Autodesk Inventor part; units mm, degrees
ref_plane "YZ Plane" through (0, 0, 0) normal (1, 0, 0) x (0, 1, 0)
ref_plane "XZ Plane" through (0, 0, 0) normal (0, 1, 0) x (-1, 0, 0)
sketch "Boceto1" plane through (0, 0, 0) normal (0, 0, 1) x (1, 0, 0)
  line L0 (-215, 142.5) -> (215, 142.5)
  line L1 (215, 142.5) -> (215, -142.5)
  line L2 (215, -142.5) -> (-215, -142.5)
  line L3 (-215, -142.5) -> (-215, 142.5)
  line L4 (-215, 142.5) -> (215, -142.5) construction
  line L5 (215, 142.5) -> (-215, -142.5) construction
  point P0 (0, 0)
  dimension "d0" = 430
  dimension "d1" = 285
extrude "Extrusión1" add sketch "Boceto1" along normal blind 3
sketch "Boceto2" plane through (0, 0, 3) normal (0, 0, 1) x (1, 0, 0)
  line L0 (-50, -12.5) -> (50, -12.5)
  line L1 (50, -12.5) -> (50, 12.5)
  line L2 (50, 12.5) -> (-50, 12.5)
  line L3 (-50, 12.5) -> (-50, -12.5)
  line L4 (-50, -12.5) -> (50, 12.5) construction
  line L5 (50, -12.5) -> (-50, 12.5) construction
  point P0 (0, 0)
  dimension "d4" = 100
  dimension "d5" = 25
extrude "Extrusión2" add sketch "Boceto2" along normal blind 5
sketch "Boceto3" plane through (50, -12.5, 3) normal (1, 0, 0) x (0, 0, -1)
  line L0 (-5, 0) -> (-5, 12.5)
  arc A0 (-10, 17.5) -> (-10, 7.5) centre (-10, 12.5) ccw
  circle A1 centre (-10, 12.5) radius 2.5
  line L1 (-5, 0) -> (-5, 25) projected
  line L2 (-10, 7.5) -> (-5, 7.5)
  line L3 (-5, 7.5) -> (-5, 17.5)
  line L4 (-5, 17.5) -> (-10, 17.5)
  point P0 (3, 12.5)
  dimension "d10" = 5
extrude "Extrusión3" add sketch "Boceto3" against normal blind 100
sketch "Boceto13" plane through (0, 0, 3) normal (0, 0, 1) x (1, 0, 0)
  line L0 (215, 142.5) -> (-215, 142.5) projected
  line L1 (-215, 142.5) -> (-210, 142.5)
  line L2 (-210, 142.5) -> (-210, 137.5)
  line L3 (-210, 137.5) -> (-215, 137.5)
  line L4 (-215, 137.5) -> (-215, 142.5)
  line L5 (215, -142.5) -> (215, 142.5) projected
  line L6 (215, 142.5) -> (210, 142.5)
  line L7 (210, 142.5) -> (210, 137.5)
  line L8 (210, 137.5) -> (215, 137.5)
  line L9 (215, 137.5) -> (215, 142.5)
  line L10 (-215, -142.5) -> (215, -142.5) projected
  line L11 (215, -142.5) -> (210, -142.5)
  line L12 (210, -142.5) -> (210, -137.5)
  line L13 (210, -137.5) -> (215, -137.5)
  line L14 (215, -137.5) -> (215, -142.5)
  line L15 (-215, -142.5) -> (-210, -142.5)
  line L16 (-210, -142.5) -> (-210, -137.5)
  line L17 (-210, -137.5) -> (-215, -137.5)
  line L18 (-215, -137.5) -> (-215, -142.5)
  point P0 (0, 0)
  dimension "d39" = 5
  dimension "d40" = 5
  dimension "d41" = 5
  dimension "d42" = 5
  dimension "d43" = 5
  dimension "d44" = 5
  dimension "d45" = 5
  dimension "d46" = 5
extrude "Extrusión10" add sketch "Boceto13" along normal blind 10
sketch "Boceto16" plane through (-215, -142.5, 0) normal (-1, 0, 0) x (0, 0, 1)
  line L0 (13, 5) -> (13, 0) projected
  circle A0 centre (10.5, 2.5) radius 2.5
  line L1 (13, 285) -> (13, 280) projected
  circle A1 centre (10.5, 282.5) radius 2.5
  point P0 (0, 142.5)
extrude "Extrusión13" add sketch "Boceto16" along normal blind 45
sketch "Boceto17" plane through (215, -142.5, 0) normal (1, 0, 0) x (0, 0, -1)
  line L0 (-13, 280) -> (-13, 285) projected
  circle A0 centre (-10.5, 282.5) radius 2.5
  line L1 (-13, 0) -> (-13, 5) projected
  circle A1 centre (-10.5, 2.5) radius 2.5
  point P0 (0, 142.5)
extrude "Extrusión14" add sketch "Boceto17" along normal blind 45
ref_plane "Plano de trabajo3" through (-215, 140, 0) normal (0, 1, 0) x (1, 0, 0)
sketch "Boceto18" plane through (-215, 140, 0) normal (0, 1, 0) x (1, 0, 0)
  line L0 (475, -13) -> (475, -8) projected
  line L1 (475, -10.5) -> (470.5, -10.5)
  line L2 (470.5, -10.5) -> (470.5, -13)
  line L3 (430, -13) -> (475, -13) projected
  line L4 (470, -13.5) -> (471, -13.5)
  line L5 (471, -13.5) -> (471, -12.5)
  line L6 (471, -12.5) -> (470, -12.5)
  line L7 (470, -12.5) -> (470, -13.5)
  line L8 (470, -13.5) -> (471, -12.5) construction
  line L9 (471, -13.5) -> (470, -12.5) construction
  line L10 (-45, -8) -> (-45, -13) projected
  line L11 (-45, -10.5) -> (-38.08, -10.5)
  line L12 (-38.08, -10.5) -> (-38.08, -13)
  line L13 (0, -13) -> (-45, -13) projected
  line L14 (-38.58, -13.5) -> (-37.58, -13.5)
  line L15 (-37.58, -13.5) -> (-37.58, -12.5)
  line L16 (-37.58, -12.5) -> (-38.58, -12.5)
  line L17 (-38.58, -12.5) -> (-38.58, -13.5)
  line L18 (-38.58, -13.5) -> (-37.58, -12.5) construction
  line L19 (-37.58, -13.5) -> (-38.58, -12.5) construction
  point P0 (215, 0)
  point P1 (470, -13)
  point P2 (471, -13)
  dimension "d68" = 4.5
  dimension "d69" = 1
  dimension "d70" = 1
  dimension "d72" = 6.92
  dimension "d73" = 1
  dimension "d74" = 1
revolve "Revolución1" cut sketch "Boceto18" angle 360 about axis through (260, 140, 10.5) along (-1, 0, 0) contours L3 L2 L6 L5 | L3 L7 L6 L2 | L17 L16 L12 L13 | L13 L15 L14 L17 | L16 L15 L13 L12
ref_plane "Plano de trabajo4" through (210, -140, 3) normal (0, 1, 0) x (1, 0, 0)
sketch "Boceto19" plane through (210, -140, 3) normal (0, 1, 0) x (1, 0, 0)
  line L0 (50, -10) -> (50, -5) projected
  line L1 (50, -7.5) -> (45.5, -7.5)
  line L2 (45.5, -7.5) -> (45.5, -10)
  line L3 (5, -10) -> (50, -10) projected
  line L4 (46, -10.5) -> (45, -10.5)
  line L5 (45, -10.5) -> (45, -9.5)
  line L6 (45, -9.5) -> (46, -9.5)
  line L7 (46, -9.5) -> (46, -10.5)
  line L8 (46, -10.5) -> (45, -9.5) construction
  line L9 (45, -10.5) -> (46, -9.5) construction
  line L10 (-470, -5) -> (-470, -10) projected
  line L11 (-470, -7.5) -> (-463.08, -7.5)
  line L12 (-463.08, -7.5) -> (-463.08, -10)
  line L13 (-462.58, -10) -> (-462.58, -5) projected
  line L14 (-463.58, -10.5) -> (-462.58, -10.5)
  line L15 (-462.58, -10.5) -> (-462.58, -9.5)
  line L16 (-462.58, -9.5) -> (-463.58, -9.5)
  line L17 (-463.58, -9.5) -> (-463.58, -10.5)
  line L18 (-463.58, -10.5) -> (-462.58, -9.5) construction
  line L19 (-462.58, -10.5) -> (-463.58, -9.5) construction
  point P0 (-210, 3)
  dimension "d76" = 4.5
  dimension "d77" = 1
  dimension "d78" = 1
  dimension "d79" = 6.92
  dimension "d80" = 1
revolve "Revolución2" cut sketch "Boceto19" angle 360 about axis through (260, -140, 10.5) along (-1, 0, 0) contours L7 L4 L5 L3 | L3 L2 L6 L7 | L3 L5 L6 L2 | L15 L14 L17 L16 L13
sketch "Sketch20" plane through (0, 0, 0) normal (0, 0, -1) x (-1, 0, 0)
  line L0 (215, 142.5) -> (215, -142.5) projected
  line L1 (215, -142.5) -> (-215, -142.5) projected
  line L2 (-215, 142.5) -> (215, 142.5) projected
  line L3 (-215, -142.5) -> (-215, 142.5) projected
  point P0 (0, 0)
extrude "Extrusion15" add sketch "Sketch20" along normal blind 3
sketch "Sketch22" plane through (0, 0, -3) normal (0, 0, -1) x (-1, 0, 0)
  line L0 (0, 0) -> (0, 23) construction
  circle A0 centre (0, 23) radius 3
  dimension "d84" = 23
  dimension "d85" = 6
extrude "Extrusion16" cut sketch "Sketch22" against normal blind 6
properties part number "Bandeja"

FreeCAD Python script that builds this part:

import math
import FreeCAD as App
import Part
import Sketcher


def add_polygon(sketch, points):
    """Adds a closed chain of lines whose ends are joined by coincident constraints."""
    first, n = sketch.GeometryCount, len(points)
    for a, b in zip(points, points[1:] + points[:1]):
        sketch.addGeometry(Part.LineSegment(App.Vector(*a, 0), App.Vector(*b, 0)), False)
    for i in range(n):
        sketch.addConstraint(Sketcher.Constraint("Coincident", first + i, 2, first + (i + 1) % n, 1))

doc = App.newDocument("Part")
params = doc.addObject("Spreadsheet::Sheet", "Params")
for row, (alias, value) in enumerate([
    ("sketch1_width", "430 mm"),
    ("sketch1_height", "285 mm"),
    ("pad1_length", "3 mm"),
    ("sketch2_width", "100 mm"),
    ("sketch2_height", "25 mm"),
    ("pad2_length", "5 mm"),
    ("sketch3_diameter", "5 mm"),
    ("sketch3_radius", "5 mm"),
    ("sketch3_height", "5 mm"),
    ("pad3_length", "100 mm"),
    ("sketch4_width", "5 mm"),
    ("pad4_length", "10 mm"),
    ("sketch5_diameter", "5 mm"),
    ("pad5_length", "45 mm"),
    ("sketch6_diameter", "5 mm"),
    ("pad6_length", "45 mm"),
    ("sketch7_width", "1 mm"),
    ("sketch7_height", "0.5 mm"),
    ("sketch7_width2", "509.58 mm"),
    ("groove_angle", "360 deg"),
    ("sketch8_width", "1 mm"),
    ("sketch8_width2", "509.58 mm"),
    ("groove2_angle", "360 deg"),
    ("sketch9_width", "430 mm"),
    ("sketch9_height", "285 mm"),
    ("pad7_length", "3 mm"),
    ("sketch10_diameter", "6 mm"),
    ("pocket1_length", "6 mm"),
], start=1):
    params.set(f"A{row}", alias)
    params.set(f"B{row}", "=" + value)
    params.setAlias(f"B{row}", alias)

body = doc.addObject("PartDesign::Body", "Body")

sketch1 = body.newObject("Sketcher::SketchObject", "Sketch")
sketch1.AttachmentSupport = (doc.getObject("XY_Plane"), [""])
sketch1.MapMode = "FlatFace"
add_polygon(sketch1, [(215, 142.5), (-215, 142.5), (-215, -142.5), (215, -142.5)])
sketch1.addConstraint(Sketcher.Constraint("Horizontal", 0))
sketch1.addConstraint(Sketcher.Constraint("Vertical", 1))
sketch1.addConstraint(Sketcher.Constraint("Horizontal", 2))
sketch1.addConstraint(Sketcher.Constraint("Vertical", 3))
sketch1.addConstraint(Sketcher.Constraint("Symmetric", 0, 2, 2, 2, -1, 1))
sketch1.addConstraint(Sketcher.Constraint("DistanceX", 0, 2, 0, 1, 430.0))
sketch1.addConstraint(Sketcher.Constraint("DistanceY", 1, 2, 1, 1, 285.0))
sketch1.setExpression("Constraints[9]", "Params.sketch1_width")
sketch1.setExpression("Constraints[10]", "Params.sketch1_height")
pad1 = body.newObject("PartDesign::Pad", "Pad")
pad1.Profile = sketch1
pad1.setExpression("Length", "Params.pad1_length")

sketch2 = body.newObject("Sketcher::SketchObject", "Sketch001")
sketch2.AttachmentSupport = (doc.getObject("XY_Plane"), [""])
sketch2.MapMode = "FlatFace"
sketch2.AttachmentOffset = App.Placement(App.Vector(0, 0, 3), App.Rotation())
add_polygon(sketch2, [(-50, 12.5), (-50, -12.5), (50, -12.5), (50, 12.5)])
sketch2.addConstraint(Sketcher.Constraint("Vertical", 0))
sketch2.addConstraint(Sketcher.Constraint("Horizontal", 1))
sketch2.addConstraint(Sketcher.Constraint("Vertical", 2))
sketch2.addConstraint(Sketcher.Constraint("Horizontal", 3))
sketch2.addConstraint(Sketcher.Constraint("Symmetric", 0, 2, 2, 2, -1, 1))
sketch2.addConstraint(Sketcher.Constraint("DistanceX", 1, 1, 1, 2, 100.0))
sketch2.addConstraint(Sketcher.Constraint("DistanceY", 0, 2, 0, 1, 25.0))
sketch2.setExpression("Constraints[9]", "Params.sketch2_width")
sketch2.setExpression("Constraints[10]", "Params.sketch2_height")
pad2 = body.newObject("PartDesign::Pad", "Pad001")
pad2.Profile = sketch2
pad2.setExpression("Length", "Params.pad2_length")

sketch3 = body.newObject("Sketcher::SketchObject", "Sketch002")
sketch3.AttachmentSupport = (doc.getObject("YZ_Plane"), [""])
sketch3.MapMode = "FlatFace"
sketch3.AttachmentOffset = App.Placement(App.Vector(0, 0, 50), App.Rotation())
sketch3.addGeometry(Part.LineSegment(App.Vector(-5, 13, 0), App.Vector(-5, 8, 0)), False)
sketch3.addGeometry(Part.LineSegment(App.Vector(-5, 8, 0), App.Vector(5, 8, 0)), False)
sketch3.addGeometry(Part.LineSegment(App.Vector(5, 8, 0), App.Vector(5, 13, 0)), False)
sketch3.addGeometry(Part.ArcOfCircle(Part.Circle(App.Vector(0, 13, 0), App.Vector(0, 0, 1), 5), math.radians(0), math.radians(180)), False)
sketch3.addGeometry(Part.Circle(App.Vector(0, 13, 0), App.Vector(0, 0, 1), 2.5), False)
sketch3.addConstraint(Sketcher.Constraint("Coincident", 0, 2, 1, 1))
sketch3.addConstraint(Sketcher.Constraint("Coincident", 1, 2, 2, 1))
sketch3.addConstraint(Sketcher.Constraint("Tangent", 2, 2, 3, 1))
sketch3.addConstraint(Sketcher.Constraint("Tangent", 3, 2, 0, 1))
sketch3.addConstraint(Sketcher.Constraint("Vertical", 0))
sketch3.addConstraint(Sketcher.Constraint("Horizontal", 1))
sketch3.addConstraint(Sketcher.Constraint("Vertical", 2))
sketch3.addConstraint(Sketcher.Constraint("Coincident", 4, 3, 3, 3))
sketch3.addConstraint(Sketcher.Constraint("PointOnObject", 3, 3, -2))
sketch3.addConstraint(Sketcher.Constraint("Diameter", 4, 5.0))
sketch3.addConstraint(Sketcher.Constraint("Radius", 3, 5.0))
sketch3.addConstraint(Sketcher.Constraint("DistanceY", 0, 2, 0, 1, 5.0))
sketch3.addConstraint(Sketcher.Constraint("DistanceY", -1, 1, 3, 3, 13.0))
sketch3.setExpression("Constraints[9]", "Params.sketch3_diameter")
sketch3.setExpression("Constraints[10]", "Params.sketch3_radius")
sketch3.setExpression("Constraints[11]", "Params.sketch3_height")
pad3 = body.newObject("PartDesign::Pad", "Pad002")
pad3.Profile = sketch3
pad3.setExpression("Length", "Params.pad3_length")
pad3.Reversed = True

sketch4 = body.newObject("Sketcher::SketchObject", "Sketch003")
sketch4.AttachmentSupport = (doc.getObject("XY_Plane"), [""])
sketch4.MapMode = "FlatFace"
sketch4.AttachmentOffset = App.Placement(App.Vector(0, 0, 3), App.Rotation())
add_polygon(sketch4, [(215, 137.5), (215, 142.5), (210, 142.5), (210, 137.5)])
add_polygon(sketch4, [(-215, -142.5), (-210, -142.5), (-210, -137.5), (-215, -137.5)])
add_polygon(sketch4, [(215, -142.5), (215, -137.5), (210, -137.5), (210, -142.5)])
add_polygon(sketch4, [(-210, 137.5), (-210, 142.5), (-215, 142.5), (-215, 137.5)])
sketch4.addConstraint(Sketcher.Constraint("Vertical", 0))
sketch4.addConstraint(Sketcher.Constraint("Horizontal", 1))
sketch4.addConstraint(Sketcher.Constraint("Vertical", 2))
sketch4.addConstraint(Sketcher.Constraint("Horizontal", 3))
sketch4.addConstraint(Sketcher.Constraint("Horizontal", 4))
sketch4.addConstraint(Sketcher.Constraint("Vertical", 5))
sketch4.addConstraint(Sketcher.Constraint("Horizontal", 6))
sketch4.addConstraint(Sketcher.Constraint("Vertical", 7))
sketch4.addConstraint(Sketcher.Constraint("Vertical", 8))
sketch4.addConstraint(Sketcher.Constraint("Horizontal", 9))
sketch4.addConstraint(Sketcher.Constraint("Vertical", 10))
sketch4.addConstraint(Sketcher.Constraint("Horizontal", 11))
sketch4.addConstraint(Sketcher.Constraint("Vertical", 12))
sketch4.addConstraint(Sketcher.Constraint("Horizontal", 13))
sketch4.addConstraint(Sketcher.Constraint("Vertical", 14))
sketch4.addConstraint(Sketcher.Constraint("Horizontal", 15))
sketch4.addConstraint(Sketcher.Constraint("Symmetric", 1, 2, 4, 2, -1, 1))
sketch4.addConstraint(Sketcher.Constraint("Symmetric", 3, 2, 6, 2, -1, 1))
sketch4.addConstraint(Sketcher.Constraint("Symmetric", 10, 2, 12, 2, -1, 1))
sketch4.addConstraint(Sketcher.Constraint("Symmetric", 8, 2, 14, 2, -1, 1))
sketch4.addConstraint(Sketcher.Constraint("Symmetric", 6, 2, 8, 2, -2))
sketch4.addConstraint(Sketcher.Constraint("Symmetric", 4, 2, 10, 2, -2))
sketch4.addConstraint(Sketcher.Constraint("Equal", 15, 0))
sketch4.addConstraint(Sketcher.Constraint("DistanceX", 1, 2, 1, 1, 5.0))
sketch4.addConstraint(Sketcher.Constraint("DistanceX", -1, 1, 0, 2, 215.0))
sketch4.addConstraint(Sketcher.Constraint("DistanceY", 4, 2, 2, 2, 280.0))
sketch4.setExpression("Constraints[39]", "Params.sketch4_width")
pad4 = body.newObject("PartDesign::Pad", "Pad003")
pad4.Profile = sketch4
pad4.setExpression("Length", "Params.pad4_length")

sketch5 = body.newObject("Sketcher::SketchObject", "Sketch004")
sketch5.AttachmentSupport = (doc.getObject("YZ_Plane"), [""])
sketch5.MapMode = "FlatFace"
sketch5.AttachmentOffset = App.Placement(App.Vector(0, 0, -215), App.Rotation())
sketch5.addGeometry(Part.Circle(App.Vector(-140, 10.5, 0), App.Vector(0, 0, 1), 2.5), False)
sketch5.addGeometry(Part.Circle(App.Vector(140, 10.5, 0), App.Vector(0, 0, 1), 2.5), False)
sketch5.addConstraint(Sketcher.Constraint("Equal", 0, 1))
sketch5.addConstraint(Sketcher.Constraint("Symmetric", 0, 3, 1, 3, -2))
sketch5.addConstraint(Sketcher.Constraint("Diameter", 0, 5.0))
sketch5.addConstraint(Sketcher.Constraint("DistanceX", 0, 3, -1, 1, 140.0))
sketch5.addConstraint(Sketcher.Constraint("DistanceY", -1, 1, 0, 3, 10.5))
sketch5.setExpression("Constraints[2]", "Params.sketch5_diameter")
pad5 = body.newObject("PartDesign::Pad", "Pad004")
pad5.Profile = sketch5
pad5.setExpression("Length", "Params.pad5_length")
pad5.Reversed = True

sketch6 = body.newObject("Sketcher::SketchObject", "Sketch005")
sketch6.AttachmentSupport = (doc.getObject("YZ_Plane"), [""])
sketch6.MapMode = "FlatFace"
sketch6.AttachmentOffset = App.Placement(App.Vector(0, 0, 215), App.Rotation())
sketch6.addGeometry(Part.Circle(App.Vector(140, 10.5, 0), App.Vector(0, 0, 1), 2.5), False)
sketch6.addGeometry(Part.Circle(App.Vector(-140, 10.5, 0), App.Vector(0, 0, 1), 2.5), False)
sketch6.addConstraint(Sketcher.Constraint("Equal", 0, 1))
sketch6.addConstraint(Sketcher.Constraint("Symmetric", 0, 3, 1, 3, -2))
sketch6.addConstraint(Sketcher.Constraint("Diameter", 0, 5.0))
sketch6.addConstraint(Sketcher.Constraint("DistanceX", -1, 1, 0, 3, 140.0))
sketch6.addConstraint(Sketcher.Constraint("DistanceY", -1, 1, 0, 3, 10.5))
sketch6.setExpression("Constraints[2]", "Params.sketch6_diameter")
pad6 = body.newObject("PartDesign::Pad", "Pad005")
pad6.Profile = sketch6
pad6.setExpression("Length", "Params.pad6_length")

sketch7 = body.newObject("Sketcher::SketchObject", "Sketch006")
sketch7.AttachmentSupport = (doc.getObject("XZ_Plane"), [""])
sketch7.MapMode = "FlatFace"
sketch7.AttachmentOffset = App.Placement(App.Vector(0, 0, -140), App.Rotation())
add_polygon(sketch7, [(256, 13), (256, 12.5), (255, 12.5), (255, 13)])
add_polygon(sketch7, [(-253.58, 12.5), (-253.58, 13.5), (-252.58, 13.5), (-252.58, 12.5)])
sketch7.addGeometry(Part.LineSegment(App.Vector(256, 10.5, 0), App.Vector(-253.58, 10.5, 0)), True)
sketch7.addConstraint(Sketcher.Constraint("Vertical", 0))
sketch7.addConstraint(Sketcher.Constraint("Horizontal", 1))
sketch7.addConstraint(Sketcher.Constraint("Vertical", 2))
sketch7.addConstraint(Sketcher.Constraint("Horizontal", 3))
sketch7.addConstraint(Sketcher.Constraint("Vertical", 4))
sketch7.addConstraint(Sketcher.Constraint("Horizontal", 5))
sketch7.addConstraint(Sketcher.Constraint("Vertical", 6))
sketch7.addConstraint(Sketcher.Constraint("Horizontal", 7))
sketch7.addConstraint(Sketcher.Constraint("Horizontal", 8))
sketch7.addConstraint(Sketcher.Constraint("Horizontal", 1, 2, 6, 2))
sketch7.addConstraint(Sketcher.Constraint("Vertical", 3, 2, 8, 1))
sketch7.addConstraint(Sketcher.Constraint("Vertical", 7, 2, 8, 2))
sketch7.addConstraint(Sketcher.Constraint("Equal", 3, 5))
sketch7.addConstraint(Sketcher.Constraint("Equal", 7, 4))
sketch7.addConstraint(Sketcher.Constraint("DistanceX", 1, 2, 1, 1, 1.0))
sketch7.addConstraint(Sketcher.Constraint("DistanceY", 0, 2, 0, 1, 0.5))
sketch7.addConstraint(Sketcher.Constraint("DistanceX", -1, 1, 0, 2, 256.0))
sketch7.addConstraint(Sketcher.Constraint("DistanceY", -1, 1, 2, 2, 13.0))
sketch7.addConstraint(Sketcher.Constraint("DistanceY", 8, 1, 0, 2, 2.0))
sketch7.addConstraint(Sketcher.Constraint("DistanceX", 8, 2, 8, 1, 509.58))
sketch7.setExpression("Constraints[22]", "Params.sketch7_width")
sketch7.setExpression("Constraints[23]", "Params.sketch7_height")
sketch7.setExpression("Constraints[27]", "Params.sketch7_width2")
groove = body.newObject("PartDesign::Groove", "Groove")
groove.Profile = sketch7
groove.ReferenceAxis = (sketch7, ["Axis0"])
groove.setExpression("Angle", "Params.groove_angle")

sketch8 = body.newObject("Sketcher::SketchObject", "Sketch007")
sketch8.AttachmentSupport = (doc.getObject("XZ_Plane"), [""])
sketch8.MapMode = "FlatFace"
sketch8.AttachmentOffset = App.Placement(App.Vector(0, 0, 140), App.Rotation())
add_polygon(sketch8, [(256, 13.5), (256, 12.5), (255, 12.5), (255, 13.5)])
add_polygon(sketch8, [(-252.58, 13.5), (-252.58, 12.5), (-253.58, 12.5), (-253.58, 13.5)])
sketch8.addGeometry(Part.LineSegment(App.Vector(256, 10.5, 0), App.Vector(-253.58, 10.5, 0)), True)
sketch8.addConstraint(Sketcher.Constraint("Vertical", 0))
sketch8.addConstraint(Sketcher.Constraint("Horizontal", 1))
sketch8.addConstraint(Sketcher.Constraint("Vertical", 2))
sketch8.addConstraint(Sketcher.Constraint("Horizontal", 3))
sketch8.addConstraint(Sketcher.Constraint("Vertical", 4))
sketch8.addConstraint(Sketcher.Constraint("Horizontal", 5))
sketch8.addConstraint(Sketcher.Constraint("Vertical", 6))
sketch8.addConstraint(Sketcher.Constraint("Horizontal", 7))
sketch8.addConstraint(Sketcher.Constraint("Horizontal", 8))
sketch8.addConstraint(Sketcher.Constraint("Horizontal", 1, 2, 4, 2))
sketch8.addConstraint(Sketcher.Constraint("Horizontal", 3, 2, 6, 2))
sketch8.addConstraint(Sketcher.Constraint("Vertical", 3, 2, 8, 1))
sketch8.addConstraint(Sketcher.Constraint("Vertical", 6, 2, 8, 2))
sketch8.addConstraint(Sketcher.Constraint("Equal", 3, 5))
sketch8.addConstraint(Sketcher.Constraint("Equal", 7, 0))
sketch8.addConstraint(Sketcher.Constraint("DistanceX", 1, 2, 1, 1, 1.0))
sketch8.addConstraint(Sketcher.Constraint("DistanceX", -1, 1, 0, 2, 256.0))
sketch8.addConstraint(Sketcher.Constraint("DistanceY", 8, 1, 0, 2, 2.0))
sketch8.addConstraint(Sketcher.Constraint("DistanceX", 8, 2, 8, 1, 509.58))
sketch8.addConstraint(Sketcher.Constraint("DistanceY", -1, 1, 0, 2, 12.5))
sketch8.setExpression("Constraints[23]", "Params.sketch8_width")
sketch8.setExpression("Constraints[26]", "Params.sketch8_width2")
groove2 = body.newObject("PartDesign::Groove", "Groove001")
groove2.Profile = sketch8
groove2.ReferenceAxis = (sketch8, ["Axis0"])
groove2.setExpression("Angle", "Params.groove2_angle")

sketch9 = body.newObject("Sketcher::SketchObject", "Sketch008")
sketch9.AttachmentSupport = (doc.getObject("XY_Plane"), [""])
sketch9.MapMode = "FlatFace"
add_polygon(sketch9, [(-215, -142.5), (-215, 142.5), (215, 142.5), (215, -142.5)])
sketch9.addConstraint(Sketcher.Constraint("Vertical", 0))
sketch9.addConstraint(Sketcher.Constraint("Horizontal", 1))
sketch9.addConstraint(Sketcher.Constraint("Vertical", 2))
sketch9.addConstraint(Sketcher.Constraint("Horizontal", 3))
sketch9.addConstraint(Sketcher.Constraint("Symmetric", 0, 2, 2, 2, -1, 1))
sketch9.addConstraint(Sketcher.Constraint("DistanceX", 1, 1, 1, 2, 430.0))
sketch9.addConstraint(Sketcher.Constraint("DistanceY", 0, 1, 0, 2, 285.0))
sketch9.setExpression("Constraints[9]", "Params.sketch9_width")
sketch9.setExpression("Constraints[10]", "Params.sketch9_height")
pad7 = body.newObject("PartDesign::Pad", "Pad006")
pad7.Profile = sketch9
pad7.setExpression("Length", "Params.pad7_length")
pad7.Reversed = True

sketch10 = body.newObject("Sketcher::SketchObject", "Sketch009")
sketch10.AttachmentSupport = (doc.getObject("XY_Plane"), [""])
sketch10.MapMode = "FlatFace"
sketch10.AttachmentOffset = App.Placement(App.Vector(0, 0, -3), App.Rotation())
sketch10.addGeometry(Part.Circle(App.Vector(0, 23, 0), App.Vector(0, 0, 1), 3), False)
sketch10.addConstraint(Sketcher.Constraint("PointOnObject", 0, 3, -2))
sketch10.addConstraint(Sketcher.Constraint("Diameter", 0, 6.0))
sketch10.addConstraint(Sketcher.Constraint("DistanceY", -1, 1, 0, 3, 23.0))
sketch10.setExpression("Constraints[1]", "Params.sketch10_diameter")
pocket1 = body.newObject("PartDesign::Pocket", "Pocket")
pocket1.Profile = sketch10
pocket1.setExpression("Length", "Params.pocket1_length")
pocket1.Reversed = True

doc.recompute()
